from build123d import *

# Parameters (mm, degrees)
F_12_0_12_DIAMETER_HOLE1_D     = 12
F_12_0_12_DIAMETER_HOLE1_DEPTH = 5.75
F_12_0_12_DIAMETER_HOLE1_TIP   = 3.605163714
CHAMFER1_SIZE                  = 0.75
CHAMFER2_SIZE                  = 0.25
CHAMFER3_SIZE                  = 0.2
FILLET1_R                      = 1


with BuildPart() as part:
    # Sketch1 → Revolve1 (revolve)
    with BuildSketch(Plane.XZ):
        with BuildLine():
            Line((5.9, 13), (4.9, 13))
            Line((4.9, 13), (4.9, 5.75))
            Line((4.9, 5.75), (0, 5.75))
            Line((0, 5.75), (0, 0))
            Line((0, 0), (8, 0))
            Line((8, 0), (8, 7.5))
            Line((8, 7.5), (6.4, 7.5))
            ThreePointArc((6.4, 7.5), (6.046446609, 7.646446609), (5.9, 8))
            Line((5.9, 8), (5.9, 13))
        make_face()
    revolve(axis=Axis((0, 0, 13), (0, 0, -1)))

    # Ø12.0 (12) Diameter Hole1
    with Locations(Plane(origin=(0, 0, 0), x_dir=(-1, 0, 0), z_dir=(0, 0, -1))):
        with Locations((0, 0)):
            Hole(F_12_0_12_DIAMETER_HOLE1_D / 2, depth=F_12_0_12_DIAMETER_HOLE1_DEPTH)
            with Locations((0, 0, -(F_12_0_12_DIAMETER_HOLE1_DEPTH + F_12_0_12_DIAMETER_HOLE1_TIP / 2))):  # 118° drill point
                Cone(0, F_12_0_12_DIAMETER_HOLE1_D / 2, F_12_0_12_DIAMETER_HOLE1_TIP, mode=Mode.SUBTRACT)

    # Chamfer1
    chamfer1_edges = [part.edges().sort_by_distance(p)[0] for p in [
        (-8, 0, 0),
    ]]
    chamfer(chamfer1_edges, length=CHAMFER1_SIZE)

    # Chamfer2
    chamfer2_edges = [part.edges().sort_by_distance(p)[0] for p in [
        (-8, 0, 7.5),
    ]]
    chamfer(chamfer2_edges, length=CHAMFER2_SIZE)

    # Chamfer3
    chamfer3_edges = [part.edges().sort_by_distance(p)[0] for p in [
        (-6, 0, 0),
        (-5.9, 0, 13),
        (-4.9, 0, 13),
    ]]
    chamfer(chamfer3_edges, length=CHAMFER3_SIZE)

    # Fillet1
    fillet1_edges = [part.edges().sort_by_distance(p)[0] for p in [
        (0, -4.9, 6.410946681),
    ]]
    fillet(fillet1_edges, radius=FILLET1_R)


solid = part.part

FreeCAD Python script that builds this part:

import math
import FreeCAD as App
import Part
import Sketcher
Q = App.Units.Quantity


def edges_at(feature, points):
    """Names of the edges that pass closest to the given points."""
    edges = feature.Shape.Edges
    near = lambda p: min(range(len(edges)), key=lambda i: edges[i].distToShape(Part.Vertex(*p))[0])
    return sorted({f"Edge{near(p) + 1}" for p in points})

doc = App.newDocument("Part")
params = doc.addObject("Spreadsheet::Sheet", "Params")
for row, (alias, value) in enumerate([
    ("sketch1_radius", "0.5 mm"),
    ("sketch1_width", "1 mm"),
    ("sketch1_width2", "8 mm"),
    ("sketch1_height", "5 mm"),
    ("sketch1_width3", "4.9 mm"),
    ("revolution_angle", "360 deg"),
    ("sketch2_diameter", "12 mm"),
    ("hole_diameter", "12 mm"),
    ("hole_depth", "5.75 mm"),
    ("chamfer_size", "0.75 mm"),
    ("chamfer2_size", "0.25 mm"),
    ("chamfer3_size", "0.2 mm"),
    ("fillet_radius", "1 mm"),
], start=1):
    params.set(f"A{row}", alias)
    params.set(f"B{row}", "=" + value)
    params.setAlias(f"B{row}", alias)

body = doc.addObject("PartDesign::Body", "Body")

sketch1 = body.newObject("Sketcher::SketchObject", "Sketch")
sketch1.AttachmentSupport = (doc.getObject("XZ_Plane"), [""])
sketch1.MapMode = "FlatFace"
sketch1.addGeometry(Part.LineSegment(App.Vector(5.9, 13, 0), App.Vector(4.9, 13, 0)), False)
sketch1.addGeometry(Part.LineSegment(App.Vector(4.9, 13, 0), App.Vector(4.9, 5.75, 0)), False)
sketch1.addGeometry(Part.LineSegment(App.Vector(4.9, 5.75, 0), App.Vector(0, 5.75, 0)), False)
sketch1.addGeometry(Part.LineSegment(App.Vector(0, 5.75, 0), App.Vector(0, 0, 0)), False)
sketch1.addGeometry(Part.LineSegment(App.Vector(0, 0, 0), App.Vector(8, 0, 0)), False)
sketch1.addGeometry(Part.LineSegment(App.Vector(8, 0, 0), App.Vector(8, 7.5, 0)), False)
sketch1.addGeometry(Part.LineSegment(App.Vector(8, 7.5, 0), App.Vector(6.4, 7.5, 0)), False)
sketch1.addGeometry(Part.ArcOfCircle(Part.Circle(App.Vector(6.4, 8, 0), App.Vector(0, 0, 1), 0.5), math.radians(180), math.radians(270)), False)
sketch1.addGeometry(Part.LineSegment(App.Vector(5.9, 8, 0), App.Vector(5.9, 13, 0)), False)
sketch1.addConstraint(Sketcher.Constraint("Coincident", 0, 2, 1, 1))
sketch1.addConstraint(Sketcher.Constraint("Coincident", 1, 2, 2, 1))
sketch1.addConstraint(Sketcher.Constraint("Coincident", 2, 2, 3, 1))
sketch1.addConstraint(Sketcher.Constraint("Coincident", 3, 2, 4, 1))
sketch1.addConstraint(Sketcher.Constraint("Coincident", 4, 2, 5, 1))
sketch1.addConstraint(Sketcher.Constraint("Coincident", 5, 2, 6, 1))
sketch1.addConstraint(Sketcher.Constraint("Tangent", 6, 2, 7, 2))
sketch1.addConstraint(Sketcher.Constraint("Tangent", 7, 1, 8, 1))
sketch1.addConstraint(Sketcher.Constraint("Coincident", 8, 2, 0, 1))
sketch1.addConstraint(Sketcher.Constraint("Horizontal", 0))
sketch1.addConstraint(Sketcher.Constraint("Vertical", 1))
sketch1.addConstraint(Sketcher.Constraint("Horizontal", 2))
sketch1.addConstraint(Sketcher.Constraint("Vertical", 3))
sketch1.addConstraint(Sketcher.Constraint("Horizontal", 4))
sketch1.addConstraint(Sketcher.Constraint("Vertical", 5))
sketch1.addConstraint(Sketcher.Constraint("Horizontal", 6))
sketch1.addConstraint(Sketcher.Constraint("Vertical", 8))
sketch1.addConstraint(Sketcher.Constraint("Coincident", 3, 2, -1, 1))
sketch1.addConstraint(Sketcher.Constraint("Radius", 7, Q("0.5 mm")))
sketch1.addConstraint(Sketcher.Constraint("DistanceX", 0, 2, 0, 1, Q("1 mm")))
sketch1.addConstraint(Sketcher.Constraint("DistanceX", 4, 1, 4, 2, Q("8 mm")))
sketch1.addConstraint(Sketcher.Constraint("DistanceY", 8, 1, 8, 2, Q("5 mm")))
sketch1.addConstraint(Sketcher.Constraint("DistanceX", 2, 2, 2, 1, Q("4.9 mm")))
sketch1.addConstraint(Sketcher.Constraint("DistanceY", 5, 1, 5, 2, Q("7.5 mm")))
sketch1.addConstraint(Sketcher.Constraint("DistanceY", 1, 2, 1, 1, Q("7.25 mm")))
sketch1.setExpression("Constraints[18]", "Params.sketch1_radius")
sketch1.setExpression("Constraints[19]", "Params.sketch1_width")
sketch1.setExpression("Constraints[20]", "Params.sketch1_width2")
sketch1.setExpression("Constraints[21]", "Params.sketch1_height")
sketch1.setExpression("Constraints[22]", "Params.sketch1_width3")
revolution = body.newObject("PartDesign::Revolution", "Revolution")
revolution.Profile = sketch1
revolution.ReferenceAxis = (sketch1, ["V_Axis"])
revolution.setExpression("Angle", "Params.revolution_angle")

sketch2 = body.newObject("Sketcher::SketchObject", "Sketch001")
sketch2.AttachmentSupport = (doc.getObject("XY_Plane"), [""])
sketch2.MapMode = "FlatFace"
sketch2.addGeometry(Part.Circle(App.Vector(0, 0, 0), App.Vector(0, 0, 1), 6), False)
sketch2.addConstraint(Sketcher.Constraint("Coincident", 0, 3, -1, 1))
sketch2.addConstraint(Sketcher.Constraint("Diameter", 0, Q("12 mm")))
sketch2.setExpression("Constraints[1]", "Params.sketch2_diameter")
doc.recompute()
hole = body.newObject("PartDesign::Hole", "Hole")
hole.Profile = sketch2
hole.ThreadType = "None"
hole.setExpression("Diameter", "Params.hole_diameter")
hole.DepthType = "Dimension"
hole.setExpression("Depth", "Params.hole_depth")
hole.DrillPoint = "Angled"
hole.DrillPointAngle = 118
hole.Reversed = True
doc.recompute()

chamfer = body.newObject("PartDesign::Chamfer", "Chamfer")
chamfer.Base = (hole, edges_at(hole, [(-8, 0, 0)]))
chamfer.setExpression("Size", "Params.chamfer_size")
doc.recompute()

chamfer2 = body.newObject("PartDesign::Chamfer", "Chamfer001")
chamfer2.Base = (chamfer, edges_at(chamfer, [(-8, 0, 7.5)]))
chamfer2.setExpression("Size", "Params.chamfer2_size")
doc.recompute()

chamfer3 = body.newObject("PartDesign::Chamfer", "Chamfer002")
chamfer3.Base = (chamfer2, edges_at(chamfer2, [(-6, 0, 0), (-5.9, 0, 13), (-4.9, 0, 13)]))
chamfer3.setExpression("Size", "Params.chamfer3_size")
doc.recompute()

fillet = body.newObject("PartDesign::Fillet", "Fillet")
fillet.Base = (chamfer3, edges_at(chamfer3, [(0, -4.9, 6.411)]))
fillet.setExpression("Radius", "Params.fillet_radius")

doc.recompute()
